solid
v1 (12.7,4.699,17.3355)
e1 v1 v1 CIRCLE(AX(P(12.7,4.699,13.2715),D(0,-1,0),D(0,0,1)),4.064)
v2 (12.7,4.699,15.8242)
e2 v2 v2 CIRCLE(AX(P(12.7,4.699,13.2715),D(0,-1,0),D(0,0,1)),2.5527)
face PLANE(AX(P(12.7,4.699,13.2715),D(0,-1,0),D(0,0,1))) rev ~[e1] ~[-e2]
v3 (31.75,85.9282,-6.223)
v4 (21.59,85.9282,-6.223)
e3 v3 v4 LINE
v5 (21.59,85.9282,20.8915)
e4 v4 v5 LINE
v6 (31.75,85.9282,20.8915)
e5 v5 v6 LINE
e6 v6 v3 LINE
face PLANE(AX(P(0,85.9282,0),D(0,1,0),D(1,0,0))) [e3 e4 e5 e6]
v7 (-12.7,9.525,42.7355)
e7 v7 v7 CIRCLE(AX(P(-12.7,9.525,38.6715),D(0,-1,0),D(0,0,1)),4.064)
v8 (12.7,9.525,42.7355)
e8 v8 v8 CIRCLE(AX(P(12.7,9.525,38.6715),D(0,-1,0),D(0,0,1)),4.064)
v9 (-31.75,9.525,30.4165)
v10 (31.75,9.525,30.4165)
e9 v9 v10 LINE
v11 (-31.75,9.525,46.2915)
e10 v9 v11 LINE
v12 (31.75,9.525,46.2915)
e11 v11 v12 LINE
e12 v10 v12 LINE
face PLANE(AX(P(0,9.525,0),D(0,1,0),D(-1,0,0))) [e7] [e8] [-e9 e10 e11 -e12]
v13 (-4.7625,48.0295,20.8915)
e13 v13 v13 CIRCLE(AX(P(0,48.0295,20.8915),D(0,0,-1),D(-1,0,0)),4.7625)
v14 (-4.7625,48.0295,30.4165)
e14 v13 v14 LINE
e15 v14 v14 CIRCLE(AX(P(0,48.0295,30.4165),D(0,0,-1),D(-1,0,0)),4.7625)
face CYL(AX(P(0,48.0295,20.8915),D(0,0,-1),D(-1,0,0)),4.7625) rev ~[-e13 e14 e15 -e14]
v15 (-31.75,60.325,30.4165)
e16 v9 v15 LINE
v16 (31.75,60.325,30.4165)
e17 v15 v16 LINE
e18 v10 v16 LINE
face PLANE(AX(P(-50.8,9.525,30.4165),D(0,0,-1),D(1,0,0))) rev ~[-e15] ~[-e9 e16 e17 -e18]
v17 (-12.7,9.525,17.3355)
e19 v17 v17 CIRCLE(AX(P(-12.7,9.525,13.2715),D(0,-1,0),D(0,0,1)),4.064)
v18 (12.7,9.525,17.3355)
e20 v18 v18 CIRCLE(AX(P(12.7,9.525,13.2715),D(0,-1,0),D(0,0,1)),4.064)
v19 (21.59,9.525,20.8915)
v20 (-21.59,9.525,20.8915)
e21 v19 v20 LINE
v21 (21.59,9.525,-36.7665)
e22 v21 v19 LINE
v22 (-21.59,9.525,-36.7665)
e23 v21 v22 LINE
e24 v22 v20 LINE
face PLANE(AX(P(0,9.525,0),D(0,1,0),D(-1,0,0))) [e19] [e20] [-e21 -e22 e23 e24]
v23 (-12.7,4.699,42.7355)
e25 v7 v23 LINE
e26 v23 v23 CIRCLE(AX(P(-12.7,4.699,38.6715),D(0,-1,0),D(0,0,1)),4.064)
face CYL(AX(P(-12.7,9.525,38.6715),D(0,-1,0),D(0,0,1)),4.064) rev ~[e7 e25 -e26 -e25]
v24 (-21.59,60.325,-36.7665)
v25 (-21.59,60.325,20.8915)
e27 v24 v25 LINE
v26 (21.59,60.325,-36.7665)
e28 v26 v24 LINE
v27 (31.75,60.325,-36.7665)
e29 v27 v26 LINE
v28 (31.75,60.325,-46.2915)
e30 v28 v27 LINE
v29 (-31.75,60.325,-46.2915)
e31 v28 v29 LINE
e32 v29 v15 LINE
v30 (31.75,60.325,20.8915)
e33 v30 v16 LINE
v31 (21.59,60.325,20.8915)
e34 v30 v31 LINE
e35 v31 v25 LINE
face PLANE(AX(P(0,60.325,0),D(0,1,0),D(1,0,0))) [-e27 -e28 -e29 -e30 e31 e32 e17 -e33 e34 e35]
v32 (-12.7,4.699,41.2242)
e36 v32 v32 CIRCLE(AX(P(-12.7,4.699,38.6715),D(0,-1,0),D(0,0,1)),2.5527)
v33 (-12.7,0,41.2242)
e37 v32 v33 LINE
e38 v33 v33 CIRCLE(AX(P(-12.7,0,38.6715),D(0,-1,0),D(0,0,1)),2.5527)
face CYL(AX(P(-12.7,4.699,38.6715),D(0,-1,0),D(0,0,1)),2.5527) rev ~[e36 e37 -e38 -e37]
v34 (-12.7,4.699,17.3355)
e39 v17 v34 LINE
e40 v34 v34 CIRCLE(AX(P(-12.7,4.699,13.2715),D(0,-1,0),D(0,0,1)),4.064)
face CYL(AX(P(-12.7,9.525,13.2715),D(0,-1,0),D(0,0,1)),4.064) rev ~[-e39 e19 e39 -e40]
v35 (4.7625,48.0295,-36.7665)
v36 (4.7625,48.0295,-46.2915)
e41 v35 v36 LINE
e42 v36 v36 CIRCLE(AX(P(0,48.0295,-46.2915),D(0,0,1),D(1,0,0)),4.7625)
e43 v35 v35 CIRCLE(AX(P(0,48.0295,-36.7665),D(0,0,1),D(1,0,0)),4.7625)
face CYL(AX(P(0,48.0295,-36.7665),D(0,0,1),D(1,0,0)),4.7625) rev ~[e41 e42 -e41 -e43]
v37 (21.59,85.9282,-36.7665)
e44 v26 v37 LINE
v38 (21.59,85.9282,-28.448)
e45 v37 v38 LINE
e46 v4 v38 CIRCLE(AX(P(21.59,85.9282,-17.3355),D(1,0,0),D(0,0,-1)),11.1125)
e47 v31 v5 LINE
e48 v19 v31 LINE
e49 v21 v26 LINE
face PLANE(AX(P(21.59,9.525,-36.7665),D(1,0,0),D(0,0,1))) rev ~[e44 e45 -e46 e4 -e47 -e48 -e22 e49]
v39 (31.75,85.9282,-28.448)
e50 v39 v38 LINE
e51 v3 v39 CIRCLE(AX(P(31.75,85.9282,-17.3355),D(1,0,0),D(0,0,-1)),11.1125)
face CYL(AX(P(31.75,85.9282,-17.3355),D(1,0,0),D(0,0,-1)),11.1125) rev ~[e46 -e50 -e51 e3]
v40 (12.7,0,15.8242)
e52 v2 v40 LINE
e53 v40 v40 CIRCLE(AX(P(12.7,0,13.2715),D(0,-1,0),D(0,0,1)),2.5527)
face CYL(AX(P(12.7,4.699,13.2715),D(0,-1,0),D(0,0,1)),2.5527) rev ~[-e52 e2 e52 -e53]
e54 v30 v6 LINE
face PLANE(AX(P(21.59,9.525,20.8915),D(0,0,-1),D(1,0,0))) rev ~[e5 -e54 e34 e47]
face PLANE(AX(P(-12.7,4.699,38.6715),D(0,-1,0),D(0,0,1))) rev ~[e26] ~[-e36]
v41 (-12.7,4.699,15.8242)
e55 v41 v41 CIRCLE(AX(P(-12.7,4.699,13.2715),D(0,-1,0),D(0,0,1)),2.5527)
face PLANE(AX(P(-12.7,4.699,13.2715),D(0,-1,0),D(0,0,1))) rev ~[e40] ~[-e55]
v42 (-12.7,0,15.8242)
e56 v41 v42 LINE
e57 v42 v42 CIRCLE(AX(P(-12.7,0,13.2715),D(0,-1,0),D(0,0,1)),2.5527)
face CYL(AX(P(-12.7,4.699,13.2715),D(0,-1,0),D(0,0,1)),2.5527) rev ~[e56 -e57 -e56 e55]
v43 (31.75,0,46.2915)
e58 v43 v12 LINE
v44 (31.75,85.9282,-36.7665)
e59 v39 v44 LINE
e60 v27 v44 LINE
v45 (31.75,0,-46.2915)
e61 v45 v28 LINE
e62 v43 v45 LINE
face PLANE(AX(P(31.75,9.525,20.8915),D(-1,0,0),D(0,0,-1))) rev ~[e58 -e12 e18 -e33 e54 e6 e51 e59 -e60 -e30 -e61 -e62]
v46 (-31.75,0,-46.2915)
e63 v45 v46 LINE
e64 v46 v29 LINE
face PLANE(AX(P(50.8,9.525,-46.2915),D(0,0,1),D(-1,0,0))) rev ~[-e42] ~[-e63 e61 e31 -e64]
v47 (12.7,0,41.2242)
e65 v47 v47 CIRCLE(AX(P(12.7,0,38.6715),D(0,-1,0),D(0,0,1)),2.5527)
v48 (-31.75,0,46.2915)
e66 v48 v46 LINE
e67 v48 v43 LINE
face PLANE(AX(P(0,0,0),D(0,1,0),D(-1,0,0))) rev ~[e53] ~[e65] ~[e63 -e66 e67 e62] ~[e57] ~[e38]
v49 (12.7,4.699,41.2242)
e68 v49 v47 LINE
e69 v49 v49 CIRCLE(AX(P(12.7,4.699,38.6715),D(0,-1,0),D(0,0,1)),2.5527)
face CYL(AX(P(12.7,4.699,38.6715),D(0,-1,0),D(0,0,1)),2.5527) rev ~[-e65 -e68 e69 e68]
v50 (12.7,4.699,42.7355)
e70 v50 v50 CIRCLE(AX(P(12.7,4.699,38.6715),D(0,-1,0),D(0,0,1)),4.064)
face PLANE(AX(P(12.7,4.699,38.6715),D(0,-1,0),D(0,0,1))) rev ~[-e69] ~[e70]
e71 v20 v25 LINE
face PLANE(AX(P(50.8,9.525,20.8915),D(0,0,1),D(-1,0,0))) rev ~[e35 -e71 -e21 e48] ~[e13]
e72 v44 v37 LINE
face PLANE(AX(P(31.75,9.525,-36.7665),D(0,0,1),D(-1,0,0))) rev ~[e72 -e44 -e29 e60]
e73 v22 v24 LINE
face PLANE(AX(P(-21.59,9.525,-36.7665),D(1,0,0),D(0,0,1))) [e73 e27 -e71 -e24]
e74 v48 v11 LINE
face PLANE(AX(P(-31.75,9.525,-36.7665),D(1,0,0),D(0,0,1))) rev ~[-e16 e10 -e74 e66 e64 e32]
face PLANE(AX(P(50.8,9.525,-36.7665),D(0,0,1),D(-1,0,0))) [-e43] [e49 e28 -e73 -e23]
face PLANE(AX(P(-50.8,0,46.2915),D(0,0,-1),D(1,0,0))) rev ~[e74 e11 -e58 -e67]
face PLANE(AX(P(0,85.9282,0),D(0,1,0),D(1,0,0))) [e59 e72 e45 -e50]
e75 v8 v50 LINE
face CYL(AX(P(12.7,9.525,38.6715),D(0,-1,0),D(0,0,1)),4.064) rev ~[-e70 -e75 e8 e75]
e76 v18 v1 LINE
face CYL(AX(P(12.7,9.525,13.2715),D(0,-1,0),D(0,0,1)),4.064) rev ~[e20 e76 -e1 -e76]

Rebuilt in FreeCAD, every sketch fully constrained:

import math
import FreeCAD as App
import Part
import Sketcher

V = App.Vector
Q = App.Units.Quantity

doc = App.newDocument("Part")
body = doc.addObject("PartDesign::Body", "Body")

# Sketch on XZ plane
sketch1 = body.newObject("Sketcher::SketchObject", "Sketch")
sketch1.AttachmentSupport = (doc.getObject("XZ_Plane"), [""])
sketch1.MapMode = "FlatFace"
sketch1.addGeometry([
    Part.LineSegment(V(-51, -46, 0), V(-51, 46, 0)),
    Part.LineSegment(V(-51, 46, 0), V(51, 46, 0)),
    Part.LineSegment(V(51, 46, 0), V(51, -46, 0)),
    Part.LineSegment(V(51, -46, 0), V(-51, -46, 0)),
], False)
sketch1.addConstraint([
    Sketcher.Constraint("Coincident", 0, 2, 1, 1),
    Sketcher.Constraint("Coincident", 1, 2, 2, 1),
    Sketcher.Constraint("Coincident", 2, 2, 3, 1),
    Sketcher.Constraint("Coincident", 3, 2, 0, 1),
    Sketcher.Constraint("Vertical", 0),
    Sketcher.Constraint("Horizontal", 1),
    Sketcher.Constraint("Vertical", 2),
    Sketcher.Constraint("Horizontal", 3),
    Sketcher.Constraint("Symmetric", 0, 2, 2, 2, -1, 1),
    Sketcher.Constraint("DistanceX", 1, 1, 1, 2, Q("4 in")),
    Sketcher.Constraint("DistanceY", 0, 1, 0, 2, Q("3.645 in")),
])
pad1 = body.newObject("PartDesign::Pad", "Pad")
pad1.Profile = sketch1
pad1.Length = Q("0.375 in")
pad1.Reversed = True

# Sketch on XZ plane
sketch2 = body.newObject("Sketcher::SketchObject", "Sketch001")
sketch2.AttachmentSupport = (doc.getObject("XZ_Plane"), [""])
sketch2.MapMode = "FlatFace"
sketch2.AttachmentOffset = App.Placement(V(0, 0, -0.375 * 25.4), App.Rotation())
sketch2.addGeometry([
    Part.Circle(V(-12.7, 38.7, 0), V(0, 0, 1), 2.6),
    Part.Circle(V(12.7, 38.7, 0), V(0, 0, 1), 2.6),
    Part.Circle(V(12.7, 13.3, 0), V(0, 0, 1), 2.6),
    Part.Circle(V(-12.7, 13.3, 0), V(0, 0, 1), 2.6),
], False)
sketch2.addConstraint([
    Sketcher.Constraint("Equal", 0, 1),
    Sketcher.Constraint("Equal", 1, 2),
    Sketcher.Constraint("Equal", 2, 3),
    Sketcher.Constraint("Symmetric", 0, 3, 1, 3, -2),
    Sketcher.Constraint("Symmetric", 2, 3, 3, 3, -2),
    Sketcher.Constraint("Vertical", 1, 3, 2, 3),
    Sketcher.Constraint("Diameter", 0, Q("0.201 in")),
    Sketcher.Constraint("DistanceX", 0, 3, 1, 3, Q("1 in")),
    Sketcher.Constraint("DistanceY", 2, 3, 1, 3, Q("1 in")),
    Sketcher.Constraint("DistanceY", -1, 1, 0, 3, Q("1.5225 in")),
])
doc.recompute()
hole = body.newObject("PartDesign::Hole", "Hole")
hole.Profile = sketch2
hole.ThreadType = "None"
hole.Diameter = Q("0.201 in")
hole.DepthType = "ThroughAll"
hole.HoleCutType = "Counterbore"
hole.HoleCutDiameter = Q("0.32 in")
hole.HoleCutDepth = Q("0.19 in")
hole.Reversed = True

# Sketch on XZ plane
sketch3 = body.newObject("Sketcher::SketchObject", "Sketch002")
sketch3.AttachmentSupport = (doc.getObject("XZ_Plane"), [""])
sketch3.MapMode = "FlatFace"
sketch3.AttachmentOffset = App.Placement(V(0, 0, -0.375 * 25.4), App.Rotation())
sketch3.addGeometry([
    Part.LineSegment(V(51, 21, 0), V(-51, 21, 0)),
    Part.LineSegment(V(-51, 21, 0), V(-51, 30, 0)),
    Part.LineSegment(V(-51, 30, 0), V(51, 30, 0)),
    Part.LineSegment(V(51, 30, 0), V(51, 21, 0)),
], False)
sketch3.addConstraint([
    Sketcher.Constraint("Coincident", 0, 2, 1, 1),
    Sketcher.Constraint("Coincident", 1, 2, 2, 1),
    Sketcher.Constraint("Coincident", 2, 2, 3, 1),
    Sketcher.Constraint("Coincident", 3, 2, 0, 1),
    Sketcher.Constraint("Horizontal", 0),
    Sketcher.Constraint("Vertical", 1),
    Sketcher.Constraint("Horizontal", 2),
    Sketcher.Constraint("Vertical", 3),
    Sketcher.Constraint("DistanceX", 0, 2, 0, 1, Q("4 in")),
    Sketcher.Constraint("DistanceY", 1, 1, 1, 2, Q("0.375 in")),
    Sketcher.Constraint("DistanceX", 0, 2, -1, 1, Q("2 in")),
    Sketcher.Constraint("DistanceY", -1, 1, 0, 2, Q("0.8225 in")),
])
pad2 = body.newObject("PartDesign::Pad", "Pad001")
pad2.Profile = sketch3
pad2.Length = Q("2 in")
pad2.Reversed = True

# Sketch on XY plane
sketch4 = body.newObject("Sketcher::SketchObject", "Sketch003")
sketch4.AttachmentSupport = (doc.getObject("XY_Plane"), [""])
sketch4.MapMode = "FlatFace"
sketch4.AttachmentOffset = App.Placement(V(0, 0, 0.8225 * 25.4), App.Rotation())
sketch4.addGeometry(Part.Circle(V(0, 48, 0), V(0, 0, 1), 4.8), False)
sketch4.addConstraint([
    Sketcher.Constraint("PointOnObject", 0, 3, -2),
    Sketcher.Constraint("Diameter", 0, Q("0.375 in")),
    Sketcher.Constraint("DistanceY", -1, 1, 0, 3, 48.0295),
])
pocket1 = body.newObject("PartDesign::Pocket", "Pocket")
pocket1.Profile = sketch4
pocket1.Type = "ThroughAll"
pocket1.Reversed = True

# Sketch on XZ plane
sketch5 = body.newObject("Sketcher::SketchObject", "Sketch004")
sketch5.AttachmentSupport = (doc.getObject("XZ_Plane"), [""])
sketch5.MapMode = "FlatFace"
sketch5.AttachmentOffset = App.Placement(V(0, 0, -0.375 * 25.4), App.Rotation())
sketch5.addGeometry([
    Part.LineSegment(V(51, -37, 0), V(51, -46, 0)),
    Part.LineSegment(V(51, -46, 0), V(-51, -46, 0)),
    Part.LineSegment(V(-51, -46, 0), V(-51, -37, 0)),
    Part.LineSegment(V(-51, -37, 0), V(51, -37, 0)),
], False)
sketch5.addConstraint([
    Sketcher.Constraint("Coincident", 0, 2, 1, 1),
    Sketcher.Constraint("Coincident", 1, 2, 2, 1),
    Sketcher.Constraint("Coincident", 2, 2, 3, 1),
    Sketcher.Constraint("Coincident", 3, 2, 0, 1),
    Sketcher.Constraint("Vertical", 0),
    Sketcher.Constraint("Horizontal", 1),
    Sketcher.Constraint("Vertical", 2),
    Sketcher.Constraint("Horizontal", 3),
    Sketcher.Constraint("DistanceX", 1, 2, 1, 1, Q("4 in")),
    Sketcher.Constraint("DistanceY", 0, 2, 0, 1, Q("0.375 in")),
    Sketcher.Constraint("DistanceX", -1, 1, 0, 2, Q("2 in")),
    Sketcher.Constraint("DistanceY", 0, 2, -1, 1, Q("1.8225 in")),
])
pad3 = body.newObject("PartDesign::Pad", "Pad002")
pad3.Profile = sketch5
pad3.Length = Q("2 in")
pad3.Reversed = True

# Sketch on XY plane
sketch6 = body.newObject("Sketcher::SketchObject", "Sketch005")
sketch6.AttachmentSupport = (doc.getObject("XY_Plane"), [""])
sketch6.MapMode = "FlatFace"
sketch6.AttachmentOffset = App.Placement(V(0, 0, -1.4475 * 25.4), App.Rotation())
sketch6.addGeometry(Part.Circle(V(0, 48, 0), V(0, 0, 1), 4.8), False)
sketch6.addConstraint([
    Sketcher.Constraint("PointOnObject", 0, 3, -2),
    Sketcher.Constraint("Diameter", 0, Q("0.375 in")),
    Sketcher.Constraint("DistanceY", -1, 1, 0, 3, 48.0295),
])
pocket2 = body.newObject("PartDesign::Pocket", "Pocket001")
pocket2.Profile = sketch6
pocket2.Type = "ThroughAll"

# Sketch on XZ plane
sketch7 = body.newObject("Sketcher::SketchObject", "Sketch006")
sketch7.AttachmentSupport = (doc.getObject("XZ_Plane"), [""])
sketch7.MapMode = "FlatFace"
sketch7.addGeometry([
    Part.LineSegment(V(32, 46, 0), V(32, -46, 0)),  # 0
    Part.LineSegment(V(32, -46, 0), V(51, -46, 0)),  # 1
    Part.LineSegment(V(51, -46, 0), V(51, 46, 0)),  # 2
    Part.LineSegment(V(51, 46, 0), V(32, 46, 0)),  # 3
    Part.LineSegment(V(-51, 46, 0), V(-51, -46, 0)),  # 4
    Part.LineSegment(V(-51, -46, 0), V(-32, -46, 0)),  # 5
    Part.LineSegment(V(-32, -46, 0), V(-32, 46, 0)),  # 6
    Part.LineSegment(V(-32, 46, 0), V(-51, 46, 0)),  # 7
], False)
sketch7.addConstraint([
    Sketcher.Constraint("Coincident", 0, 2, 1, 1),
    Sketcher.Constraint("Coincident", 1, 2, 2, 1),
    Sketcher.Constraint("Coincident", 2, 2, 3, 1),
    Sketcher.Constraint("Coincident", 3, 2, 0, 1),
    Sketcher.Constraint("Coincident", 4, 2, 5, 1),
    Sketcher.Constraint("Coincident", 5, 2, 6, 1),
    Sketcher.Constraint("Coincident", 6, 2, 7, 1),
    Sketcher.Constraint("Coincident", 7, 2, 4, 1),
    Sketcher.Constraint("Vertical", 0),
    Sketcher.Constraint("Horizontal", 1),
    Sketcher.Constraint("Vertical", 2),
    Sketcher.Constraint("Horizontal", 3),
    Sketcher.Constraint("Vertical", 4),
    Sketcher.Constraint("Horizontal", 5),
    Sketcher.Constraint("Vertical", 6),
    Sketcher.Constraint("Horizontal", 7),
    Sketcher.Constraint("Symmetric", 2, 2, 4, 2, -1, 1),
    Sketcher.Constraint("Symmetric", 0, 2, 6, 2, -1, 1),
    Sketcher.Constraint("Horizontal", 1, 2, 4, 2),
    Sketcher.Constraint("DistanceX", 1, 1, 1, 2, Q("0.75 in")),
    Sketcher.Constraint("DistanceX", -1, 1, 1, 2, Q("2 in")),
    Sketcher.Constraint("DistanceY", 0, 2, 0, 1, Q("3.645 in")),
])
pocket3 = body.newObject("PartDesign::Pocket", "Pocket002")
pocket3.Profile = sketch7
pocket3.Type = "ThroughAll"

# Sketch on XZ plane
sketch8 = body.newObject("Sketcher::SketchObject", "Sketch007")
sketch8.AttachmentSupport = (doc.getObject("XZ_Plane"), [""])
sketch8.MapMode = "FlatFace"
sketch8.AttachmentOffset = App.Placement(V(0, 0, -0.375 * 25.4), App.Rotation())
sketch8.addGeometry([
    Part.LineSegment(V(22, -37, 0), V(22, 21, 0)),
    Part.LineSegment(V(22, 21, 0), V(32, 21, 0)),
    Part.LineSegment(V(32, 21, 0), V(32, -37, 0)),
    Part.LineSegment(V(32, -37, 0), V(22, -37, 0)),
], False)
sketch8.addConstraint([
    Sketcher.Constraint("Coincident", 0, 2, 1, 1),
    Sketcher.Constraint("Coincident", 1, 2, 2, 1),
    Sketcher.Constraint("Coincident", 2, 2, 3, 1),
    Sketcher.Constraint("Coincident", 3, 2, 0, 1),
    Sketcher.Constraint("Vertical", 0),
    Sketcher.Constraint("Horizontal", 1),
    Sketcher.Constraint("Vertical", 2),
    Sketcher.Constraint("Horizontal", 3),
    Sketcher.Constraint("DistanceX", 1, 1, 1, 2, Q("0.4 in")),
    Sketcher.Constraint("DistanceY", 0, 1, 0, 2, Q("2.27 in")),
    Sketcher.Constraint("DistanceX", -1, 1, 0, 2, Q("0.85 in")),
    Sketcher.Constraint("DistanceY", -1, 1, 0, 2, Q("0.8225 in")),
])
pad4 = body.newObject("PartDesign::Pad", "Pad003")
pad4.Profile = sketch8
pad4.Length = Q("3.008 in")
pad4.Reversed = True

# Sketch on YZ plane
sketch9 = body.newObject("Sketcher::SketchObject", "Sketch008")
sketch9.AttachmentSupport = (doc.getObject("YZ_Plane"), [""])
sketch9.MapMode = "FlatFace"
sketch9.AttachmentOffset = App.Placement(V(0, 0, 1.25 * 25.4), App.Rotation())
sketch9.addGeometry([
    Part.LineSegment(V(86, -28, 0), V(86, -6, 0)),
    Part.ArcOfCircle(Part.Circle(V(86, -17, 0), V(0, 0, 1), 11), math.radians(90), math.radians(270)),
], False)
sketch9.addConstraint([
    Sketcher.Constraint("Coincident", 0, 1, 1, 2),
    Sketcher.Constraint("Coincident", 1, 1, 0, 2),
    Sketcher.Constraint("Vertical", 0),
    Sketcher.Constraint("Vertical", 1, 3, 0, 1),
    Sketcher.Constraint("Radius", 1, Q("0.4375 in")),
    Sketcher.Constraint("DistanceY", 0, 1, -1, 1, Q("1.12 in")),
    Sketcher.Constraint("DistanceX", -1, 1, 1, 3, Q("3.383 in")),
])
pocket4 = body.newObject("PartDesign::Pocket", "Pocket003")
pocket4.Profile = sketch9
pocket4.Type = "ThroughAll"

# Sketch on XZ plane
sketch10 = body.newObject("Sketcher::SketchObject", "Sketch009")
sketch10.AttachmentSupport = (doc.getObject("XZ_Plane"), [""])
sketch10.MapMode = "FlatFace"
sketch10.AttachmentOffset = App.Placement(V(0, 0, -0.375 * 25.4), App.Rotation())
sketch10.addGeometry([
    Part.LineSegment(V(-22, -37, 0), V(-32, -37, 0)),
    Part.LineSegment(V(-32, -37, 0), V(-32, 21, 0)),
    Part.LineSegment(V(-32, 21, 0), V(-22, 21, 0)),
    Part.LineSegment(V(-22, 21, 0), V(-22, -37, 0)),
], False)
sketch10.addConstraint([
    Sketcher.Constraint("Coincident", 0, 2, 1, 1),
    Sketcher.Constraint("Coincident", 1, 2, 2, 1),
    Sketcher.Constraint("Coincident", 2, 2, 3, 1),
    Sketcher.Constraint("Coincident", 3, 2, 0, 1),
    Sketcher.Constraint("Horizontal", 0),
    Sketcher.Constraint("Vertical", 1),
    Sketcher.Constraint("Horizontal", 2),
    Sketcher.Constraint("Vertical", 3),
    Sketcher.Constraint("DistanceX", 0, 2, 0, 1, Q("0.4 in")),
    Sketcher.Constraint("DistanceY", 1, 1, 1, 2, Q("2.27 in")),
    Sketcher.Constraint("DistanceX", 0, 2, -1, 1, Q("1.25 in")),
    Sketcher.Constraint("DistanceY", 0, 2, -1, 1, Q("1.4475 in")),
])
pad5 = body.newObject("PartDesign::Pad", "Pad004")
pad5.Profile = sketch10
pad5.Length = Q("2 in")
pad5.Reversed = True

doc.recompute()
